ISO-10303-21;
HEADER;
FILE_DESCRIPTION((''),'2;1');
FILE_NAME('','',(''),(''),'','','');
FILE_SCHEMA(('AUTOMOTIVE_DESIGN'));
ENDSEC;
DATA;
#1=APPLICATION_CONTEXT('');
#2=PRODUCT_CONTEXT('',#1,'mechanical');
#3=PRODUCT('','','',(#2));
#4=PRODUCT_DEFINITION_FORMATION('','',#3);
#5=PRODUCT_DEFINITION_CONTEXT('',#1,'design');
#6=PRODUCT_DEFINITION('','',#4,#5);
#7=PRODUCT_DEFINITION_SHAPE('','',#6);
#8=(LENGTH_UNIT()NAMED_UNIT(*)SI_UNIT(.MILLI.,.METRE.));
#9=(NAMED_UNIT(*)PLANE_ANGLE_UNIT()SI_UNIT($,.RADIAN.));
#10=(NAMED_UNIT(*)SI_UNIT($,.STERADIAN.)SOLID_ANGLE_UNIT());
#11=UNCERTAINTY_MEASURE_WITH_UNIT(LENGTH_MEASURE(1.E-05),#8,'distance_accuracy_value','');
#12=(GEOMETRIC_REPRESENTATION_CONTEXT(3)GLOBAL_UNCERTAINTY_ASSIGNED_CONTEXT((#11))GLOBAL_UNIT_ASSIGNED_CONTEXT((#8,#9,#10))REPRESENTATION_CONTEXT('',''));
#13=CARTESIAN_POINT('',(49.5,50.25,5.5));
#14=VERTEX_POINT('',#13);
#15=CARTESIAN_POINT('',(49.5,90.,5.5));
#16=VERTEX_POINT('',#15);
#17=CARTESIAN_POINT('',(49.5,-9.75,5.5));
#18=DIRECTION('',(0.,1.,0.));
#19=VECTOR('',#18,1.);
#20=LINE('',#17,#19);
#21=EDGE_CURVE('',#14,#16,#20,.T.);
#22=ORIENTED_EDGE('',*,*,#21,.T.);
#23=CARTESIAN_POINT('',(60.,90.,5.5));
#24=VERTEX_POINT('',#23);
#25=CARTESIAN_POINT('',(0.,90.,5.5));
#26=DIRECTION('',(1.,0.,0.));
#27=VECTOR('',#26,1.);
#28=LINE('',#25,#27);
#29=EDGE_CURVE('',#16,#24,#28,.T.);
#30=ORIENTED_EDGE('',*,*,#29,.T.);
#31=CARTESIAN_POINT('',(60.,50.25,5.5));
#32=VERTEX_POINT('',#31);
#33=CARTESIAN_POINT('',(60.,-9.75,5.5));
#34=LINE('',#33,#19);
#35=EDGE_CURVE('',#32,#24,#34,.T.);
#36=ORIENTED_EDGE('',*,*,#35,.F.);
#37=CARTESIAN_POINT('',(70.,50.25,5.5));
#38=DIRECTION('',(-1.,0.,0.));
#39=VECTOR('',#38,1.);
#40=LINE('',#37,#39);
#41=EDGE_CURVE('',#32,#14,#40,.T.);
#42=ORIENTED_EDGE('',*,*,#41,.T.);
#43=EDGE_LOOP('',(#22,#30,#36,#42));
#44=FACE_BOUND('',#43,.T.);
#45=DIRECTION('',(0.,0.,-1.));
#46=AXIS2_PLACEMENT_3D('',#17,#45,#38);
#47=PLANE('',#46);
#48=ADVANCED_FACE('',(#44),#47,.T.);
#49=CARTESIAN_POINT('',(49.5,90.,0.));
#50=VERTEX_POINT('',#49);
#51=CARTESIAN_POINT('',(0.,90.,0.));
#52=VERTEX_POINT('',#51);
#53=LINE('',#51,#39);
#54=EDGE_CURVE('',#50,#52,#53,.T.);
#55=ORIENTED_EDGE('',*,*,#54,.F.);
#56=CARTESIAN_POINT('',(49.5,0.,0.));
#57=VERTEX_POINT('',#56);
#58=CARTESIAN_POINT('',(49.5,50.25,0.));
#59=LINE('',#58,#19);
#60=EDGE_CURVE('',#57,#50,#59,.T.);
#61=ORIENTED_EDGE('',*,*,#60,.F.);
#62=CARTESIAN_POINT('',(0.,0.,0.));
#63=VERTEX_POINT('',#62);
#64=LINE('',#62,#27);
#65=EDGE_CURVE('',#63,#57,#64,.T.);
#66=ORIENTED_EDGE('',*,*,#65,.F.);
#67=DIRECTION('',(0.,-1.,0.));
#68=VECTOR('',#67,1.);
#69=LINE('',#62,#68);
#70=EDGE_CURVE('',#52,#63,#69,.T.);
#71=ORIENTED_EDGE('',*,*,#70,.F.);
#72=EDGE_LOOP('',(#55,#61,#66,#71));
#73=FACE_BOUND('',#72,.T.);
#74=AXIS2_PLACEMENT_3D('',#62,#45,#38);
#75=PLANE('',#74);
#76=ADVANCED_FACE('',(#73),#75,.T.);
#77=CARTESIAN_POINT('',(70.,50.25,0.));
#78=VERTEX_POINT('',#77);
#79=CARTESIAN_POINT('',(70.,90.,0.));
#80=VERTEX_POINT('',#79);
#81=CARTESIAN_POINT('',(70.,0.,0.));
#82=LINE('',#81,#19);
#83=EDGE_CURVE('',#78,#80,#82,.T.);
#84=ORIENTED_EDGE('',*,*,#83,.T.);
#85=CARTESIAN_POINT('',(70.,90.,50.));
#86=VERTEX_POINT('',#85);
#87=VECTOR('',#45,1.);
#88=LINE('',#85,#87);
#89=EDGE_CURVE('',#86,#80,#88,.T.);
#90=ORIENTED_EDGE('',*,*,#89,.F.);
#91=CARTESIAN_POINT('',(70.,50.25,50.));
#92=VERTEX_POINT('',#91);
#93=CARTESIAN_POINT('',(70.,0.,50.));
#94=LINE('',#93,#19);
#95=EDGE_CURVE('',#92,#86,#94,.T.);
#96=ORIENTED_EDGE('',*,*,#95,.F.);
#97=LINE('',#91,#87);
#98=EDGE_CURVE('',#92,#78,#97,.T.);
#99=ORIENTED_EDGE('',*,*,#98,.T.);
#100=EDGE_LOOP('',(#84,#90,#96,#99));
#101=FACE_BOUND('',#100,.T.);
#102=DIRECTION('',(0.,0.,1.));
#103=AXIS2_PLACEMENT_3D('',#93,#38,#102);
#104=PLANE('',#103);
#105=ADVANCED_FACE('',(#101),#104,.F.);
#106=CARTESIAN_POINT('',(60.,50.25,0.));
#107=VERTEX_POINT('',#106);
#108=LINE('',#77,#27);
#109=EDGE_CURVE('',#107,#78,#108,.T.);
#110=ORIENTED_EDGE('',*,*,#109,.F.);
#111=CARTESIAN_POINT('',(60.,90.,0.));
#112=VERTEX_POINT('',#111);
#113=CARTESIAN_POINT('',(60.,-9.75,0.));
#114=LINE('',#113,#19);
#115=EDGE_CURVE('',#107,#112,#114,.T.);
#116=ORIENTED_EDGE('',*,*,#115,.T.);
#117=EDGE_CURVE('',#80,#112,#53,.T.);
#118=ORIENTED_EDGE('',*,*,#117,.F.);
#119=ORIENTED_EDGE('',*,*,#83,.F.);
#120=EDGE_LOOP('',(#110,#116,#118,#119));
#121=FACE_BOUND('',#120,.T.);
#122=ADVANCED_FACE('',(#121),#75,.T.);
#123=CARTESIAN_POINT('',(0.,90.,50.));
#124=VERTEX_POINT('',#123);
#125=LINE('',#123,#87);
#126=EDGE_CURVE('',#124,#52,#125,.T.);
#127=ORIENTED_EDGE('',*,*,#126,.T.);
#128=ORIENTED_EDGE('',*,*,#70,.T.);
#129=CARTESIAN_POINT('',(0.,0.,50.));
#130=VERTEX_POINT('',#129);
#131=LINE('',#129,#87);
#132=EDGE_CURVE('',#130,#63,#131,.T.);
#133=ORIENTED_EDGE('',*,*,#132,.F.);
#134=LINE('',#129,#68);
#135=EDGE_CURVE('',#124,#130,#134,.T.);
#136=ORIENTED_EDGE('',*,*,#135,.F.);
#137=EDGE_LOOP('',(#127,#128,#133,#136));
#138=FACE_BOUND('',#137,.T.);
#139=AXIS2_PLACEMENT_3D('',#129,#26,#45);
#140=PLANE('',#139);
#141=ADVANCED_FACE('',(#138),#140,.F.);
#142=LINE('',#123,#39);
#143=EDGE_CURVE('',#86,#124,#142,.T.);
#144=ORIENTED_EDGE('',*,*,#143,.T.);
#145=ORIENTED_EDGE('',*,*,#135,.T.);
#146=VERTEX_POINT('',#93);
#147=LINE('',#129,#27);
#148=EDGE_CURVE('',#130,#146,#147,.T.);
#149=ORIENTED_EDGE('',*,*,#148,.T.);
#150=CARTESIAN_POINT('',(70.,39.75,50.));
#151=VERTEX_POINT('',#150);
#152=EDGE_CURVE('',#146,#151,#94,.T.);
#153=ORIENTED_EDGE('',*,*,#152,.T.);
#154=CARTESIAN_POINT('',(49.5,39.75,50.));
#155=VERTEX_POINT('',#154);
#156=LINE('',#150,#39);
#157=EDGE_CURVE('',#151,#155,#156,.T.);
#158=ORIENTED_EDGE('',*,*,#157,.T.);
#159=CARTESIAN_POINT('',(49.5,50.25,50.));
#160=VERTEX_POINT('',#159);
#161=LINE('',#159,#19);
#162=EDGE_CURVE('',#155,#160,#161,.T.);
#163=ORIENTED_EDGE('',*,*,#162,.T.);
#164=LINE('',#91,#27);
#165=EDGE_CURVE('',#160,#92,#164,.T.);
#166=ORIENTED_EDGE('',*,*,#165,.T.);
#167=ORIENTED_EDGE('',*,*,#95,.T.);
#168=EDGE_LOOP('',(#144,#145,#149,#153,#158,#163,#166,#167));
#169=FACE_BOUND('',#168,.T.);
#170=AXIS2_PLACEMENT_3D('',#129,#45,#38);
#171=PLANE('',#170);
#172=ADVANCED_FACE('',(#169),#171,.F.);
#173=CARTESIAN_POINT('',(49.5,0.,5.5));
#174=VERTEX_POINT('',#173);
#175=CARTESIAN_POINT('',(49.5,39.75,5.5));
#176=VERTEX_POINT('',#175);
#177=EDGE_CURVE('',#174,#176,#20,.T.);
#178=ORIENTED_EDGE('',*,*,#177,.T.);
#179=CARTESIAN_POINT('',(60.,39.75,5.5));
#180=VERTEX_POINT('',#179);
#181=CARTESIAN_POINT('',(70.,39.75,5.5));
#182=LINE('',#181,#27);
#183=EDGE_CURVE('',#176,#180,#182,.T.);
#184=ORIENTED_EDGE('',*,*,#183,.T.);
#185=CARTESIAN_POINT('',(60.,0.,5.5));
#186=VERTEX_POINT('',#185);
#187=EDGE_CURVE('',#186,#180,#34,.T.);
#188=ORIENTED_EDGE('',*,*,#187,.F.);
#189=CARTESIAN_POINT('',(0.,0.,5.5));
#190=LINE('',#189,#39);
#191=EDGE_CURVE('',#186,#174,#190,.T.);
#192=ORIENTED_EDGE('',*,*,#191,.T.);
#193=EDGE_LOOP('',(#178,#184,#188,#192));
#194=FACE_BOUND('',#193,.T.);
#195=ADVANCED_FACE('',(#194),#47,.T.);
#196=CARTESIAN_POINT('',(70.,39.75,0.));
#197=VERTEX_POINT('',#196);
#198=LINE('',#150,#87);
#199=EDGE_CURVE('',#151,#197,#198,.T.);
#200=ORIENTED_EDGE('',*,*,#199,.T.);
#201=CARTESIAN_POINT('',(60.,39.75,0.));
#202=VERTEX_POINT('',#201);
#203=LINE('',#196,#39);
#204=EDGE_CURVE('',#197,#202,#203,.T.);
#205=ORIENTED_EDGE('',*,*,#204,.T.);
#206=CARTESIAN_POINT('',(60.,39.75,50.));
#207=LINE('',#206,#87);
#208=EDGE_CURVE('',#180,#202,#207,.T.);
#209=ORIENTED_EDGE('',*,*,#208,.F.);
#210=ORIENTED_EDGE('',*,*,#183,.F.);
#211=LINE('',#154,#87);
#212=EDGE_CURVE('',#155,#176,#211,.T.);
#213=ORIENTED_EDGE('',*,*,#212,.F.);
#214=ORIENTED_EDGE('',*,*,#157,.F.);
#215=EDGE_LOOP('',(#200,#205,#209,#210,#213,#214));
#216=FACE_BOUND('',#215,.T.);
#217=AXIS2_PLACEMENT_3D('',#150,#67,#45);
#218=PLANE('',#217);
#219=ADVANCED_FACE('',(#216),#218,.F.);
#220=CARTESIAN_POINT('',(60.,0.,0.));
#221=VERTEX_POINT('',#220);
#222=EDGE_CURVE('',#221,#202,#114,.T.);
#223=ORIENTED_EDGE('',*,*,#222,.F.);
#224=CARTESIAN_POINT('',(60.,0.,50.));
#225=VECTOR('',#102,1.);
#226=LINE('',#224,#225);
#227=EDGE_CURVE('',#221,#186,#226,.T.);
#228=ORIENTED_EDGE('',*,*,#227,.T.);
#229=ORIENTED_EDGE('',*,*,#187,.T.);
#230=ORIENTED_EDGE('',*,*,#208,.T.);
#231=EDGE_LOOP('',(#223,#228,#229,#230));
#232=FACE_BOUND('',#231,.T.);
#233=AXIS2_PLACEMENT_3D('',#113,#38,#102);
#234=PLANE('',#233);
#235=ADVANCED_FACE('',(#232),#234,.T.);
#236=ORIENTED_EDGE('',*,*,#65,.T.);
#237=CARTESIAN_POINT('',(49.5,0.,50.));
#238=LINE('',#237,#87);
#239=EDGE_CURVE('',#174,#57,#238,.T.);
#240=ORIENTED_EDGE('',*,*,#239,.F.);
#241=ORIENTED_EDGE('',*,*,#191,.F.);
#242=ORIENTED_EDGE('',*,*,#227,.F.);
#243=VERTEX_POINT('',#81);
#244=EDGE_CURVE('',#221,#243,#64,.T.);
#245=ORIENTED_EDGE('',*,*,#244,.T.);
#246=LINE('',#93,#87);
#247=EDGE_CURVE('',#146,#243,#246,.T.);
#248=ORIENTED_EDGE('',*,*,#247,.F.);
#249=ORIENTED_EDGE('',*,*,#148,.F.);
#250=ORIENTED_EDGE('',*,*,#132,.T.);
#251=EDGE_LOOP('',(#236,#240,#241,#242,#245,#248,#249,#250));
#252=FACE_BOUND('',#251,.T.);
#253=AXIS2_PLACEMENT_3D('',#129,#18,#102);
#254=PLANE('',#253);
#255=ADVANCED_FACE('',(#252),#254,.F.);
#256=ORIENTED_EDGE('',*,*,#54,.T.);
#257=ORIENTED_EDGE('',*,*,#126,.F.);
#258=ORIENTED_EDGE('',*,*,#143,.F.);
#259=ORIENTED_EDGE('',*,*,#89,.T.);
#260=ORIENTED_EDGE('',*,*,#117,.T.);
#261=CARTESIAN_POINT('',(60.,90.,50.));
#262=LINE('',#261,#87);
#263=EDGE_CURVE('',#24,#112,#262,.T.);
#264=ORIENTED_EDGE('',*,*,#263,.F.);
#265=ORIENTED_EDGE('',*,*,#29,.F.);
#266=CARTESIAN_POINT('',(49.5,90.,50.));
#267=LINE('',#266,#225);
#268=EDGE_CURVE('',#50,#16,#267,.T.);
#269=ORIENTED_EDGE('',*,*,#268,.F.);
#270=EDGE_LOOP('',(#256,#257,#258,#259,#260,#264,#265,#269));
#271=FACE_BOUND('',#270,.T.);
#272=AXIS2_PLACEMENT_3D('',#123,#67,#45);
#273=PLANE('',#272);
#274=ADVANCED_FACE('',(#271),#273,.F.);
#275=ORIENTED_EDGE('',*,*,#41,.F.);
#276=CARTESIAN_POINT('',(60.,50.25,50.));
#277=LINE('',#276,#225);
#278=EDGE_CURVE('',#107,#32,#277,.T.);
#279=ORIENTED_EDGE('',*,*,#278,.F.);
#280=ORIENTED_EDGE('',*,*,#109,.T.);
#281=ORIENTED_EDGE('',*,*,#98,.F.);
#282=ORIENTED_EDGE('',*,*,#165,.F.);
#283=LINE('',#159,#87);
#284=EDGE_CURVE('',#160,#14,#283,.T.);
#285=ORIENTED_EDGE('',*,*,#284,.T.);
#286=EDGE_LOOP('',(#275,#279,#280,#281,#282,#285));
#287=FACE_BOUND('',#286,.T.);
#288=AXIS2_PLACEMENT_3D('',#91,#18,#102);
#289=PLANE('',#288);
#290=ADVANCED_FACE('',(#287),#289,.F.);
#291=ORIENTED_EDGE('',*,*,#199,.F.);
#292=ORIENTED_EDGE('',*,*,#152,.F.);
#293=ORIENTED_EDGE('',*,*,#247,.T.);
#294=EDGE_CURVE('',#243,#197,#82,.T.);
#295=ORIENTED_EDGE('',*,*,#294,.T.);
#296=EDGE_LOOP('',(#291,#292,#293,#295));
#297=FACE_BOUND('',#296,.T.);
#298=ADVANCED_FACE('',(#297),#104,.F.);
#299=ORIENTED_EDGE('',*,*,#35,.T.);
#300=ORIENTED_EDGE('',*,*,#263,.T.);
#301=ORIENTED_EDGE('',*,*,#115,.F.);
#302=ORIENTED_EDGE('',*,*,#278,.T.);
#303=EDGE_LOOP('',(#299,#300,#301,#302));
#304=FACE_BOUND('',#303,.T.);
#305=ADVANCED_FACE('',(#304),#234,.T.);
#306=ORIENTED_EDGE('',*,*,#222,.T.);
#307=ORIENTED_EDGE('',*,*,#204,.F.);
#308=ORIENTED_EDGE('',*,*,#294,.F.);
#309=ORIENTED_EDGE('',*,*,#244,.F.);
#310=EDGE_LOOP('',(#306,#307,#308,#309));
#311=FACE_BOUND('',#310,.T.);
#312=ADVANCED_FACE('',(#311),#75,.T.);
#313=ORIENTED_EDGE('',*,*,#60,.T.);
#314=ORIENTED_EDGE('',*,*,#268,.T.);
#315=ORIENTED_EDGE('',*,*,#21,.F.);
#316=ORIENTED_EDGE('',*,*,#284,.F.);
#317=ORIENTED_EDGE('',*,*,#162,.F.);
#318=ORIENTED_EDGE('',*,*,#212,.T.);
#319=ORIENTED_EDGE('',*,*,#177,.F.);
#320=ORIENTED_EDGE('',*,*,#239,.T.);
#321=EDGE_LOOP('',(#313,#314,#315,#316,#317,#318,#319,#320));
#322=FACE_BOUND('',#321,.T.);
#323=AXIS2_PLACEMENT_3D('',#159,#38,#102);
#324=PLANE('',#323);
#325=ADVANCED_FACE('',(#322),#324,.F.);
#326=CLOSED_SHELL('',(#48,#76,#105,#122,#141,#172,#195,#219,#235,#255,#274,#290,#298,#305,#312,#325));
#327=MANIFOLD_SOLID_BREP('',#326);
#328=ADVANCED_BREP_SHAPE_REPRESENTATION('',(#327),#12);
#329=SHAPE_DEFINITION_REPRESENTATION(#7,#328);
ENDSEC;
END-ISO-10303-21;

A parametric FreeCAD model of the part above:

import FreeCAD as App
import Part
import Sketcher

V = App.Vector
Q = App.Units.Quantity


def add_polygon(sketch, points):
    """Adds a closed chain of lines whose ends are joined by coincident constraints."""
    first, n = sketch.GeometryCount, len(points)
    for a, b in zip(points, points[1:] + points[:1]):
        sketch.addGeometry(Part.LineSegment(App.Vector(*a, 0), App.Vector(*b, 0)), False)
    for i in range(n):
        sketch.addConstraint(Sketcher.Constraint("Coincident", first + i, 2, first + (i + 1) % n, 1))

doc = App.newDocument("Part")
body = doc.addObject("PartDesign::Body", "Body")

# Sketch on XY plane
sketch1 = body.newObject("Sketcher::SketchObject", "Sketch")
sketch1.AttachmentSupport = (doc.getObject("XY_Plane"), [""])
sketch1.MapMode = "FlatFace"
add_polygon(sketch1, [(0, 90), (0, 0), (70, 0), (70, 90)])  # lines 0-3
sketch1.addConstraint([
    Sketcher.Constraint("Vertical", 0),
    Sketcher.Constraint("Horizontal", 1),
    Sketcher.Constraint("Vertical", 2),
    Sketcher.Constraint("Horizontal", 3),
    Sketcher.Constraint("Coincident", 0, 2, -1, 1),
    Sketcher.Constraint("DistanceX", 1, 1, 1, 2, Q("70 mm")),
    Sketcher.Constraint("DistanceY", 0, 2, 0, 1, Q("90 mm")),
])
pad1 = body.newObject("PartDesign::Pad", "Pad")
pad1.Profile = sketch1
pad1.Length = 50

# Sketch on XY plane
sketch2 = body.newObject("Sketcher::SketchObject", "Sketch001")
sketch2.AttachmentSupport = (doc.getObject("XY_Plane"), [""])
sketch2.MapMode = "FlatFace"
add_polygon(sketch2, [(70, 50), (70, 40), (50, 40), (50, 50)])  # lines 0-3
sketch2.addConstraint([
    Sketcher.Constraint("Vertical", 0),
    Sketcher.Constraint("Horizontal", 1),
    Sketcher.Constraint("Vertical", 2),
    Sketcher.Constraint("Horizontal", 3),
    Sketcher.Constraint("DistanceX", 1, 2, 1, 1, Q("20.5 mm")),
    Sketcher.Constraint("DistanceY", 0, 2, 0, 1, Q("10.5 mm")),
    Sketcher.Constraint("DistanceX", -1, 1, 0, 2, Q("70 mm")),
    Sketcher.Constraint("DistanceY", -1, 1, 0, 2, Q("39.75 mm")),
])
pocket1 = body.newObject("PartDesign::Pocket", "Pocket")
pocket1.Profile = sketch2
pocket1.Length = 50
pocket1.Reversed = True

# Sketch on XZ plane
sketch3 = body.newObject("Sketcher::SketchObject", "Sketch002")
sketch3.AttachmentSupport = (doc.getObject("XZ_Plane"), [""])
sketch3.MapMode = "FlatFace"
sketch3.AttachmentOffset = App.Placement(V(0, 0, -50.25), App.Rotation())
add_polygon(sketch3, [(50, 6), (50, 0), (60, 0), (60, 6)])  # lines 0-3
sketch3.addConstraint([
    Sketcher.Constraint("Vertical", 0),
    Sketcher.Constraint("Horizontal", 1),
    Sketcher.Constraint("Vertical", 2),
    Sketcher.Constraint("Horizontal", 3),
    Sketcher.Constraint("PointOnObject", 0, 2, -1),
    Sketcher.Constraint("DistanceX", 1, 1, 1, 2, Q("10.5 mm")),
    Sketcher.Constraint("DistanceY", 0, 2, 0, 1, Q("5.5 mm")),
    Sketcher.Constraint("DistanceX", -1, 1, 1, 2, Q("60 mm")),
])
pocket2 = body.newObject("PartDesign::Pocket", "Pocket001")
pocket2.Profile = sketch3
pocket2.Type = "ThroughAll"
pocket2.Midplane = True

doc.recompute()
